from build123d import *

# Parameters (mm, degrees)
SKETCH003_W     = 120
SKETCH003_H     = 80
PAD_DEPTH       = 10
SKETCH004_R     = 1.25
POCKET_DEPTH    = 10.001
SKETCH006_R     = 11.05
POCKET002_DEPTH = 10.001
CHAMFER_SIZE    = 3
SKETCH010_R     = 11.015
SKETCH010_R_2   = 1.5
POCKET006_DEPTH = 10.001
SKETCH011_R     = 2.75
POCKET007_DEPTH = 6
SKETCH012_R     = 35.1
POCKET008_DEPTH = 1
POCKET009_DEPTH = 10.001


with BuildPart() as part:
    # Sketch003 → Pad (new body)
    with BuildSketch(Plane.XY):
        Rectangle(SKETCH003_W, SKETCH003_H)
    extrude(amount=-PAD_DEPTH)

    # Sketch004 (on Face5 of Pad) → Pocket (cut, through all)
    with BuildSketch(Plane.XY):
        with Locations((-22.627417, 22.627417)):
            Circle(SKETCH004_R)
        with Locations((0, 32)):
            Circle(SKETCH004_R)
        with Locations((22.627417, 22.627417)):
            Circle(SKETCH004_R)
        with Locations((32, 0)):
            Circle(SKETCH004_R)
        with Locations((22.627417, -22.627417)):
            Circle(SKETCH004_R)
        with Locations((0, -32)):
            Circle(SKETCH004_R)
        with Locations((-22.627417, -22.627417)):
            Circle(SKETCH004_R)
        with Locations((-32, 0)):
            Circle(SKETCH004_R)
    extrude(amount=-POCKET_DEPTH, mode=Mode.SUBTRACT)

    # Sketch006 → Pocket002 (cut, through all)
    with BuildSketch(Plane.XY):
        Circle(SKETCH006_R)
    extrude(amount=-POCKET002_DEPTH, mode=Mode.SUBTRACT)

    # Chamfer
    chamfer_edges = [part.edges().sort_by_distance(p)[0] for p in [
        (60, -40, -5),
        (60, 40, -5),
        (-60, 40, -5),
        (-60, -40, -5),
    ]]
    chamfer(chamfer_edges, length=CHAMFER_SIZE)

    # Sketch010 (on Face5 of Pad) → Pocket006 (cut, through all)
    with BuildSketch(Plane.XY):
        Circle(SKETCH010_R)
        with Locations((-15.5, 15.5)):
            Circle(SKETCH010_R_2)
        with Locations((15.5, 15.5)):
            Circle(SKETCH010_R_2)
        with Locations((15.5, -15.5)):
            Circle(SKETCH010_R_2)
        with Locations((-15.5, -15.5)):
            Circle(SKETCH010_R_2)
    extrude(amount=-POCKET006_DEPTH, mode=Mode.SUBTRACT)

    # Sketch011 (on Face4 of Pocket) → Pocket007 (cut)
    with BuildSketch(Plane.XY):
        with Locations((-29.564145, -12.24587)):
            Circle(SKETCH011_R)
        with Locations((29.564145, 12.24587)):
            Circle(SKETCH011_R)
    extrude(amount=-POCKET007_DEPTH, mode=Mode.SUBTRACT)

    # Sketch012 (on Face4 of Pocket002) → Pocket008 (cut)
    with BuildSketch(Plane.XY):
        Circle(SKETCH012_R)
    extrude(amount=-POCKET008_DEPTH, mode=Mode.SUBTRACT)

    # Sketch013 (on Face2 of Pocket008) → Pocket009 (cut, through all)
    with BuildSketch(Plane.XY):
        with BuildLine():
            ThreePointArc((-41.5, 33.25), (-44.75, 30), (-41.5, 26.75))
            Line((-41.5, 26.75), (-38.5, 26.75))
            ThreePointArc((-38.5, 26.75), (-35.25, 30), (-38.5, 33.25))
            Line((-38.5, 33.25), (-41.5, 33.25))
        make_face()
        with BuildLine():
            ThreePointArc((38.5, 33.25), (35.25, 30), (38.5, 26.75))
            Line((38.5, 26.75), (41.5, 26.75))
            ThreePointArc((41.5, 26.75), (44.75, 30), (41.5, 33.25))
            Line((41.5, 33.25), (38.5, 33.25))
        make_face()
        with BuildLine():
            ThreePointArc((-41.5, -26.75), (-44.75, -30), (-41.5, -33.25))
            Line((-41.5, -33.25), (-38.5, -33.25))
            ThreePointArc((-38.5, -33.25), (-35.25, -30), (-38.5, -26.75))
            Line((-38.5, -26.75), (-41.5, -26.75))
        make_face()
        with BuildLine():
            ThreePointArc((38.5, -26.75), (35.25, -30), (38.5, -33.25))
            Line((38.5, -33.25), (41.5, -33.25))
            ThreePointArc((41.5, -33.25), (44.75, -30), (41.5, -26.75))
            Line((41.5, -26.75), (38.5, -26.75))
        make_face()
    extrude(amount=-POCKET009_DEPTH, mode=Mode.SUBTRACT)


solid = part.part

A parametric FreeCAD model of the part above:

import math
import FreeCAD as App
import Part
import Sketcher
Q = App.Units.Quantity


def edges_at(feature, points):
    """Names of the edges that pass closest to the given points."""
    edges = feature.Shape.Edges
    near = lambda p: min(range(len(edges)), key=lambda i: edges[i].distToShape(Part.Vertex(*p))[0])
    return sorted({f"Edge{near(p) + 1}" for p in points})


def add_polygon(sketch, points):
    """Adds a closed chain of lines whose ends are joined by coincident constraints."""
    first, n = sketch.GeometryCount, len(points)
    for a, b in zip(points, points[1:] + points[:1]):
        sketch.addGeometry(Part.LineSegment(App.Vector(*a, 0), App.Vector(*b, 0)), False)
    for i in range(n):
        sketch.addConstraint(Sketcher.Constraint("Coincident", first + i, 2, first + (i + 1) % n, 1))

doc = App.newDocument("Part")
params = doc.addObject("Spreadsheet::Sheet", "Params")
for row, (alias, value) in enumerate([
    ("sketch1_width", "120 mm"),
    ("sketch1_height", "80 mm"),
    ("pad1_length", "10 mm"),
    ("sketch2_diameter", "2.5 mm"),
    ("sketch3_diameter", "22.1 mm"),
    ("chamfer_size", "3 mm"),
    ("sketch4_diameter", "3 mm"),
    ("sketch4_diameter2", "22.03 mm"),
    ("sketch5_diameter", "5.5 mm"),
    ("pocket4_length", "6 mm"),
    ("sketch6_diameter", "70.2 mm"),
    ("pocket5_length", "1 mm"),
    ("sketch7_width", "3 mm"),
    ("sketch7_radius", "3.25 mm"),
], start=1):
    params.set(f"A{row}", alias)
    params.set(f"B{row}", "=" + value)
    params.setAlias(f"B{row}", alias)

body = doc.addObject("PartDesign::Body", "Body")

# Sketch on XY plane
sketch1 = body.newObject("Sketcher::SketchObject", "Sketch")
sketch1.AttachmentSupport = (doc.getObject("XY_Plane"), [""])
sketch1.MapMode = "FlatFace"
add_polygon(sketch1, [(-60, 40), (-60, -40), (60, -40), (60, 40)])  # lines 0-3
sketch1.addConstraint(Sketcher.Constraint("Vertical", 0))
sketch1.addConstraint(Sketcher.Constraint("Horizontal", 1))
sketch1.addConstraint(Sketcher.Constraint("Vertical", 2))
sketch1.addConstraint(Sketcher.Constraint("Horizontal", 3))
sketch1.addConstraint(Sketcher.Constraint("Symmetric", 0, 2, 2, 2, -1, 1))
sketch1.addConstraint(Sketcher.Constraint("DistanceX", 1, 1, 1, 2, Q("120 mm")))
sketch1.addConstraint(Sketcher.Constraint("DistanceY", 0, 2, 0, 1, Q("80 mm")))
sketch1.setExpression("Constraints[9]", "Params.sketch1_width")
sketch1.setExpression("Constraints[10]", "Params.sketch1_height")
pad1 = body.newObject("PartDesign::Pad", "Pad")
pad1.Profile = sketch1
pad1.setExpression("Length", "Params.pad1_length")
pad1.Reversed = True

# Sketch on XY plane
sketch2 = body.newObject("Sketcher::SketchObject", "Sketch001")
sketch2.AttachmentSupport = (doc.getObject("XY_Plane"), [""])
sketch2.MapMode = "FlatFace"
sketch2.addGeometry(Part.Circle(App.Vector(-22.627417, 22.627417, 0), App.Vector(0, 0, 1), 1.25), False)
sketch2.addGeometry(Part.Circle(App.Vector(0, 32, 0), App.Vector(0, 0, 1), 1.25), False)
sketch2.addGeometry(Part.Circle(App.Vector(22.627417, 22.627417, 0), App.Vector(0, 0, 1), 1.25), False)
sketch2.addGeometry(Part.Circle(App.Vector(32, 0, 0), App.Vector(0, 0, 1), 1.25), False)
sketch2.addGeometry(Part.Circle(App.Vector(22.627417, -22.627417, 0), App.Vector(0, 0, 1), 1.25), False)
sketch2.addGeometry(Part.Circle(App.Vector(0, -32, 0), App.Vector(0, 0, 1), 1.25), False)
sketch2.addGeometry(Part.Circle(App.Vector(-22.627417, -22.627417, 0), App.Vector(0, 0, 1), 1.25), False)
sketch2.addGeometry(Part.Circle(App.Vector(-32, 0, 0), App.Vector(0, 0, 1), 1.25), False)
sketch2.addConstraint(Sketcher.Constraint("Equal", 0, 1))
sketch2.addConstraint(Sketcher.Constraint("Equal", 1, 2))
sketch2.addConstraint(Sketcher.Constraint("Equal", 2, 3))
sketch2.addConstraint(Sketcher.Constraint("Equal", 3, 4))
sketch2.addConstraint(Sketcher.Constraint("Equal", 4, 5))
sketch2.addConstraint(Sketcher.Constraint("Equal", 5, 6))
sketch2.addConstraint(Sketcher.Constraint("Equal", 6, 7))
sketch2.addConstraint(Sketcher.Constraint("Symmetric", 0, 3, 4, 3, -1, 1))
sketch2.addConstraint(Sketcher.Constraint("Symmetric", 1, 3, 5, 3, -1, 1))
sketch2.addConstraint(Sketcher.Constraint("Symmetric", 2, 3, 6, 3, -1, 1))
sketch2.addConstraint(Sketcher.Constraint("Symmetric", 3, 3, 7, 3, -1, 1))
sketch2.addConstraint(Sketcher.Constraint("Symmetric", 0, 3, 2, 3, -2))
sketch2.addConstraint(Sketcher.Constraint("PointOnObject", 1, 3, -2))
sketch2.addConstraint(Sketcher.Constraint("PointOnObject", 3, 3, -1))
sketch2.addConstraint(Sketcher.Constraint("Diameter", 0, Q("2.5 mm")))
sketch2.addConstraint(Sketcher.Constraint("DistanceY", -1, 1, 1, 3, Q("32 mm")))
sketch2.addConstraint(Sketcher.Constraint("DistanceX", -1, 1, 3, 3, Q("32 mm")))
sketch2.addConstraint(Sketcher.Constraint("DistanceX", 0, 3, -1, 1, Q("22.627417 mm")))
sketch2.addConstraint(Sketcher.Constraint("DistanceY", -1, 1, 0, 3, Q("22.627417 mm")))
sketch2.setExpression("Constraints[14]", "Params.sketch2_diameter")
pocket1 = body.newObject("PartDesign::Pocket", "Pocket")
pocket1.Profile = sketch2
pocket1.Type = "ThroughAll"

# Sketch on XY plane
sketch3 = body.newObject("Sketcher::SketchObject", "Sketch002")
sketch3.AttachmentSupport = (doc.getObject("XY_Plane"), [""])
sketch3.MapMode = "FlatFace"
sketch3.addGeometry(Part.Circle(App.Vector(0, 0, 0), App.Vector(0, 0, 1), 11.05), False)
sketch3.addConstraint(Sketcher.Constraint("Coincident", 0, 3, -1, 1))
sketch3.addConstraint(Sketcher.Constraint("Diameter", 0, Q("22.1 mm")))
sketch3.setExpression("Constraints[1]", "Params.sketch3_diameter")
pocket2 = body.newObject("PartDesign::Pocket", "Pocket001")
pocket2.Profile = sketch3
pocket2.Type = "ThroughAll"
doc.recompute()

chamfer = body.newObject("PartDesign::Chamfer", "Chamfer")
chamfer.Base = (pocket2, edges_at(pocket2, [
    (60, -40, -5),
    (60, 40, -5),
    (-60, 40, -5),
    (-60, -40, -5),
]))
chamfer.setExpression("Size", "Params.chamfer_size")

# Sketch on XY plane
sketch4 = body.newObject("Sketcher::SketchObject", "Sketch003")
sketch4.AttachmentSupport = (doc.getObject("XY_Plane"), [""])
sketch4.MapMode = "FlatFace"
sketch4.addGeometry(Part.Circle(App.Vector(0, 0, 0), App.Vector(0, 0, 1), 11.015), False)
sketch4.addGeometry(Part.Circle(App.Vector(-15.5, 15.5, 0), App.Vector(0, 0, 1), 1.5), False)
sketch4.addGeometry(Part.Circle(App.Vector(15.5, 15.5, 0), App.Vector(0, 0, 1), 1.5), False)
sketch4.addGeometry(Part.Circle(App.Vector(15.5, -15.5, 0), App.Vector(0, 0, 1), 1.5), False)
sketch4.addGeometry(Part.Circle(App.Vector(-15.5, -15.5, 0), App.Vector(0, 0, 1), 1.5), False)
sketch4.addConstraint(Sketcher.Constraint("Coincident", 0, 3, -1, 1))
sketch4.addConstraint(Sketcher.Constraint("Equal", 1, 2))
sketch4.addConstraint(Sketcher.Constraint("Equal", 2, 3))
sketch4.addConstraint(Sketcher.Constraint("Equal", 3, 4))
sketch4.addConstraint(Sketcher.Constraint("Symmetric", 1, 3, 3, 3, -1, 1))
sketch4.addConstraint(Sketcher.Constraint("Symmetric", 2, 3, 4, 3, -1, 1))
sketch4.addConstraint(Sketcher.Constraint("Symmetric", 1, 3, 2, 3, -2))
sketch4.addConstraint(Sketcher.Constraint("Diameter", 1, Q("3 mm")))
sketch4.addConstraint(Sketcher.Constraint("Diameter", 0, Q("22.03 mm")))
sketch4.addConstraint(Sketcher.Constraint("DistanceX", 1, 3, 2, 3, Q("31 mm")))
sketch4.addConstraint(Sketcher.Constraint("DistanceY", 3, 3, 2, 3, Q("31 mm")))
sketch4.setExpression("Constraints[7]", "Params.sketch4_diameter")
sketch4.setExpression("Constraints[8]", "Params.sketch4_diameter2")
pocket3 = body.newObject("PartDesign::Pocket", "Pocket002")
pocket3.Profile = sketch4
pocket3.Type = "ThroughAll"

# Sketch on XY plane
sketch5 = body.newObject("Sketcher::SketchObject", "Sketch004")
sketch5.AttachmentSupport = (doc.getObject("XY_Plane"), [""])
sketch5.MapMode = "FlatFace"
sketch5.addGeometry(Part.Circle(App.Vector(-29.564145, -12.24587, 0), App.Vector(0, 0, 1), 2.75), False)
sketch5.addGeometry(Part.Circle(App.Vector(29.564145, 12.24587, 0), App.Vector(0, 0, 1), 2.75), False)
sketch5.addConstraint(Sketcher.Constraint("Equal", 0, 1))
sketch5.addConstraint(Sketcher.Constraint("Symmetric", 0, 3, 1, 3, -1, 1))
sketch5.addConstraint(Sketcher.Constraint("Diameter", 0, Q("5.5 mm")))
sketch5.addConstraint(Sketcher.Constraint("DistanceY", 0, 3, -1, 1, Q("12.24587 mm")))
sketch5.addConstraint(Sketcher.Constraint("DistanceX", 0, 3, 1, 3, Q("59.12829 mm")))
sketch5.setExpression("Constraints[2]", "Params.sketch5_diameter")
pocket4 = body.newObject("PartDesign::Pocket", "Pocket003")
pocket4.Profile = sketch5
pocket4.setExpression("Length", "Params.pocket4_length")

# Sketch on XY plane
sketch6 = body.newObject("Sketcher::SketchObject", "Sketch005")
sketch6.AttachmentSupport = (doc.getObject("XY_Plane"), [""])
sketch6.MapMode = "FlatFace"
sketch6.addGeometry(Part.Circle(App.Vector(0, 0, 0), App.Vector(0, 0, 1), 35.1), False)
sketch6.addConstraint(Sketcher.Constraint("Coincident", 0, 3, -1, 1))
sketch6.addConstraint(Sketcher.Constraint("Diameter", 0, Q("70.2 mm")))
sketch6.setExpression("Constraints[1]", "Params.sketch6_diameter")
pocket5 = body.newObject("PartDesign::Pocket", "Pocket004")
pocket5.Profile = sketch6
pocket5.setExpression("Length", "Params.pocket5_length")

# Sketch on XY plane
sketch7 = body.newObject("Sketcher::SketchObject", "Sketch006")
sketch7.AttachmentSupport = (doc.getObject("XY_Plane"), [""])
sketch7.MapMode = "FlatFace"
sketch7.addGeometry(Part.ArcOfCircle(Part.Circle(App.Vector(-41.5, 30, 0), App.Vector(0, 0, 1), 3.25), math.radians(90), math.radians(270)), False)
sketch7.addGeometry(Part.LineSegment(App.Vector(-41.5, 26.75, 0), App.Vector(-38.5, 26.75, 0)), False)
sketch7.addGeometry(Part.ArcOfCircle(Part.Circle(App.Vector(-38.5, 30, 0), App.Vector(0, 0, 1), 3.25), math.radians(-90), math.radians(90)), False)
sketch7.addGeometry(Part.LineSegment(App.Vector(-38.5, 33.25, 0), App.Vector(-41.5, 33.25, 0)), False)
sketch7.addGeometry(Part.ArcOfCircle(Part.Circle(App.Vector(38.5, 30, 0), App.Vector(0, 0, 1), 3.25), math.radians(90), math.radians(270)), False)
sketch7.addGeometry(Part.LineSegment(App.Vector(38.5, 26.75, 0), App.Vector(41.5, 26.75, 0)), False)
sketch7.addGeometry(Part.ArcOfCircle(Part.Circle(App.Vector(41.5, 30, 0), App.Vector(0, 0, 1), 3.25), math.radians(-90), math.radians(90)), False)
sketch7.addGeometry(Part.LineSegment(App.Vector(41.5, 33.25, 0), App.Vector(38.5, 33.25, 0)), False)
sketch7.addGeometry(Part.ArcOfCircle(Part.Circle(App.Vector(-41.5, -30, 0), App.Vector(0, 0, 1), 3.25), math.radians(90), math.radians(270)), False)
sketch7.addGeometry(Part.LineSegment(App.Vector(-41.5, -33.25, 0), App.Vector(-38.5, -33.25, 0)), False)
sketch7.addGeometry(Part.ArcOfCircle(Part.Circle(App.Vector(-38.5, -30, 0), App.Vector(0, 0, 1), 3.25), math.radians(-90), math.radians(90)), False)
sketch7.addGeometry(Part.LineSegment(App.Vector(-38.5, -26.75, 0), App.Vector(-41.5, -26.75, 0)), False)
sketch7.addGeometry(Part.ArcOfCircle(Part.Circle(App.Vector(38.5, -30, 0), App.Vector(0, 0, 1), 3.25), math.radians(90), math.radians(270)), False)
sketch7.addGeometry(Part.LineSegment(App.Vector(38.5, -33.25, 0), App.Vector(41.5, -33.25, 0)), False)
sketch7.addGeometry(Part.ArcOfCircle(Part.Circle(App.Vector(41.5, -30, 0), App.Vector(0, 0, 1), 3.25), math.radians(-90), math.radians(90)), False)
sketch7.addGeometry(Part.LineSegment(App.Vector(41.5, -26.75, 0), App.Vector(38.5, -26.75, 0)), False)
sketch7.addConstraint(Sketcher.Constraint("Tangent", 0, 2, 1, 1))
sketch7.addConstraint(Sketcher.Constraint("Tangent", 1, 2, 2, 1))
sketch7.addConstraint(Sketcher.Constraint("Tangent", 2, 2, 3, 1))
sketch7.addConstraint(Sketcher.Constraint("Tangent", 3, 2, 0, 1))
sketch7.addConstraint(Sketcher.Constraint("Tangent", 4, 2, 5, 1))
sketch7.addConstraint(Sketcher.Constraint("Tangent", 5, 2, 6, 1))
sketch7.addConstraint(Sketcher.Constraint("Tangent", 6, 2, 7, 1))
sketch7.addConstraint(Sketcher.Constraint("Tangent", 7, 2, 4, 1))
sketch7.addConstraint(Sketcher.Constraint("Tangent", 8, 2, 9, 1))
sketch7.addConstraint(Sketcher.Constraint("Tangent", 9, 2, 10, 1))
sketch7.addConstraint(Sketcher.Constraint("Tangent", 10, 2, 11, 1))
sketch7.addConstraint(Sketcher.Constraint("Tangent", 11, 2, 8, 1))
sketch7.addConstraint(Sketcher.Constraint("Tangent", 12, 2, 13, 1))
sketch7.addConstraint(Sketcher.Constraint("Tangent", 13, 2, 14, 1))
sketch7.addConstraint(Sketcher.Constraint("Tangent", 14, 2, 15, 1))
sketch7.addConstraint(Sketcher.Constraint("Tangent", 15, 2, 12, 1))
sketch7.addConstraint(Sketcher.Constraint("Horizontal", 1))
sketch7.addConstraint(Sketcher.Constraint("Horizontal", 3))
sketch7.addConstraint(Sketcher.Constraint("Horizontal", 5))
sketch7.addConstraint(Sketcher.Constraint("Horizontal", 7))
sketch7.addConstraint(Sketcher.Constraint("Horizontal", 9))
sketch7.addConstraint(Sketcher.Constraint("Horizontal", 11))
sketch7.addConstraint(Sketcher.Constraint("Horizontal", 13))
sketch7.addConstraint(Sketcher.Constraint("Horizontal", 15))
sketch7.addConstraint(Sketcher.Constraint("Equal", 2, 4))
sketch7.addConstraint(Sketcher.Constraint("Equal", 6, 8))
sketch7.addConstraint(Sketcher.Constraint("Equal", 10, 12))
sketch7.addConstraint(Sketcher.Constraint("Symmetric", 6, 3, 8, 3, -1, 1))
sketch7.addConstraint(Sketcher.Constraint("Symmetric", 2, 3, 12, 3, -1, 1))
sketch7.addConstraint(Sketcher.Constraint("Symmetric", 2, 3, 4, 3, -2))
sketch7.addConstraint(Sketcher.Constraint("Vertical", 0, 3, 8, 3))
sketch7.addConstraint(Sketcher.Constraint("Vertical", 2, 3, 10, 3))
sketch7.addConstraint(Sketcher.Constraint("Vertical", 6, 3, 14, 3))
sketch7.addConstraint(Sketcher.Constraint("DistanceX", 1, 1, 1, 2, Q("3 mm")))
sketch7.addConstraint(Sketcher.Constraint("Radius", 0, Q("3.25 mm")))
sketch7.addConstraint(Sketcher.Constraint("DistanceY", -1, 1, 0, 3, Q("30 mm")))
sketch7.addConstraint(Sketcher.Constraint("DistanceX", 2, 3, 4, 3, Q("77 mm")))
sketch7.setExpression("Constraints[33]", "Params.sketch7_width")
sketch7.setExpression("Constraints[34]", "Params.sketch7_radius")
pocket6 = body.newObject("PartDesign::Pocket", "Pocket005")
pocket6.Profile = sketch7
pocket6.Type = "ThroughAll"

doc.recompute()
